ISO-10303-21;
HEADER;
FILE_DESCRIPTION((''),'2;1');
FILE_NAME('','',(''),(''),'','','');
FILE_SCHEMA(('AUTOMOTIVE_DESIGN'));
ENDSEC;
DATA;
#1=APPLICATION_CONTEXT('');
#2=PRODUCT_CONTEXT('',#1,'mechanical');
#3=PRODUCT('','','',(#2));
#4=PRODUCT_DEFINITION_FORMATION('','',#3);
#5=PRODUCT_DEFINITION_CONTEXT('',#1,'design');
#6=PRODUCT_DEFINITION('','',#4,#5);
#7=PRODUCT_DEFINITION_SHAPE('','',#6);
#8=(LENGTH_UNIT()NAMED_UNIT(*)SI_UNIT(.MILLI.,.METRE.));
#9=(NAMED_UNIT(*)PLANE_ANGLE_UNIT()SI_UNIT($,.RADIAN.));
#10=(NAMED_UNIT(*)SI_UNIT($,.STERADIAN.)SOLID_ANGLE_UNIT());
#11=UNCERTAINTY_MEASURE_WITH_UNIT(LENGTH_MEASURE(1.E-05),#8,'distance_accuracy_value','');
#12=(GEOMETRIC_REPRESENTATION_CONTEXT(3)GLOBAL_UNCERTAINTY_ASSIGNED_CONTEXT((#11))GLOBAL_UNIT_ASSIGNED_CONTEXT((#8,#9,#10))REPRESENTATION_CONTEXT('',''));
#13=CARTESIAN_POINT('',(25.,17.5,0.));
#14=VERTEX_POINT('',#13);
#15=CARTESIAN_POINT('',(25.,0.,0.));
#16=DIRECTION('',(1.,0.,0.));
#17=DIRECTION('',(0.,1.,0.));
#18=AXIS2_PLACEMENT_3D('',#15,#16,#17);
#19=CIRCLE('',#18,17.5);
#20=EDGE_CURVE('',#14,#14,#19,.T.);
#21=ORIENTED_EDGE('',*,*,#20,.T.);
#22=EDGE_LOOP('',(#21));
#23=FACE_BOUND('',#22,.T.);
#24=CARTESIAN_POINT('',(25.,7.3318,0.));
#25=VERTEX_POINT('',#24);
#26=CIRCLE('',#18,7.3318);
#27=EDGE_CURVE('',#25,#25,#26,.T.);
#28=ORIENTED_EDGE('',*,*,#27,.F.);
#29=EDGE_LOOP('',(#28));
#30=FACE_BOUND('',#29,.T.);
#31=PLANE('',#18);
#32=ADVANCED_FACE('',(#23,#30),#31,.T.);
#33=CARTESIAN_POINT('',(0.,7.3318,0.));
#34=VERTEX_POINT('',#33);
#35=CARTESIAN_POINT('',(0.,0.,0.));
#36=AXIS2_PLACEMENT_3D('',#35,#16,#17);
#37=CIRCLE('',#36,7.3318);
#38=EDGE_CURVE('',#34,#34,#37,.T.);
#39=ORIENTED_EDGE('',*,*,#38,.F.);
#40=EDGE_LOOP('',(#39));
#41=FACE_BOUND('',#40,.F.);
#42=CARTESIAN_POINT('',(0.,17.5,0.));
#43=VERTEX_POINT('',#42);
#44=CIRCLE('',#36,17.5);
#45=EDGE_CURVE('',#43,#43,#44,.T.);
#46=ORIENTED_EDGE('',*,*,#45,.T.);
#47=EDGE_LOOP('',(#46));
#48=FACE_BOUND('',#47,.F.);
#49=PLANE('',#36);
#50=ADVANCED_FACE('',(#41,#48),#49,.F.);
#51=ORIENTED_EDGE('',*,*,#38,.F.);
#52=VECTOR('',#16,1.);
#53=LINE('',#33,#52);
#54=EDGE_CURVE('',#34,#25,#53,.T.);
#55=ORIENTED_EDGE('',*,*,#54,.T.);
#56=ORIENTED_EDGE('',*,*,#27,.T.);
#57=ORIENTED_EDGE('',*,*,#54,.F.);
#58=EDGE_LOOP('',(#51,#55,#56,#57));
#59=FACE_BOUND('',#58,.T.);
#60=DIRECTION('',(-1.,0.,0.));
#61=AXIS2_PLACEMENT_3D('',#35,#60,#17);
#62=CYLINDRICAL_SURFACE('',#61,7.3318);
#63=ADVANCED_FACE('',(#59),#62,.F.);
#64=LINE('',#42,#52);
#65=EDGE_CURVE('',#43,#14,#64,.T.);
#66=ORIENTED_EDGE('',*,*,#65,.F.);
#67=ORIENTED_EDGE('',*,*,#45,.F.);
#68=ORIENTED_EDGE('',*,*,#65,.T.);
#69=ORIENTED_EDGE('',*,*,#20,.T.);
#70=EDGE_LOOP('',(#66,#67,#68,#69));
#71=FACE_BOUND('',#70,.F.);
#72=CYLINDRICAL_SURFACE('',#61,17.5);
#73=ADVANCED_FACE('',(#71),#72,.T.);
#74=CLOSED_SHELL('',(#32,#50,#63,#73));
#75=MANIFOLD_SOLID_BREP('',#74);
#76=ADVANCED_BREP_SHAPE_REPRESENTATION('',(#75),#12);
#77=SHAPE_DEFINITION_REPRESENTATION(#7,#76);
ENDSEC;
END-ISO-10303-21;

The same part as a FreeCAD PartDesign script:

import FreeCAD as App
import Part
import Sketcher

V = App.Vector

doc = App.newDocument("Part")
body = doc.addObject("PartDesign::Body", "Body")

# Sketch on YZ plane
sketch1 = doc.addObject("Sketcher::SketchObject", "Sketch")
body.addObject(sketch1)
sketch1.AttachmentSupport = (doc.YZ_Plane, [""])
sketch1.MapMode = "FlatFace"
sketch1.addGeometry([
    Part.Circle(V(0, 0, 0), V(0, 0, 1), 18),
    Part.Circle(V(0, 0, 0), V(0, 0, 1), 7),
], False)
sketch1.addConstraint([
    Sketcher.Constraint("Coincident", 0, 3, -1, 1),
    Sketcher.Constraint("Coincident", 1, 3, -1, 1),
    Sketcher.Constraint("Diameter", 0, 35.0),
    Sketcher.Constraint("Diameter", 1, 14.6636),
])
pad1 = doc.addObject("PartDesign::Pad", "Pad")
body.addObject(pad1)
pad1.Profile = sketch1
pad1.Length = 25

doc.recompute()
